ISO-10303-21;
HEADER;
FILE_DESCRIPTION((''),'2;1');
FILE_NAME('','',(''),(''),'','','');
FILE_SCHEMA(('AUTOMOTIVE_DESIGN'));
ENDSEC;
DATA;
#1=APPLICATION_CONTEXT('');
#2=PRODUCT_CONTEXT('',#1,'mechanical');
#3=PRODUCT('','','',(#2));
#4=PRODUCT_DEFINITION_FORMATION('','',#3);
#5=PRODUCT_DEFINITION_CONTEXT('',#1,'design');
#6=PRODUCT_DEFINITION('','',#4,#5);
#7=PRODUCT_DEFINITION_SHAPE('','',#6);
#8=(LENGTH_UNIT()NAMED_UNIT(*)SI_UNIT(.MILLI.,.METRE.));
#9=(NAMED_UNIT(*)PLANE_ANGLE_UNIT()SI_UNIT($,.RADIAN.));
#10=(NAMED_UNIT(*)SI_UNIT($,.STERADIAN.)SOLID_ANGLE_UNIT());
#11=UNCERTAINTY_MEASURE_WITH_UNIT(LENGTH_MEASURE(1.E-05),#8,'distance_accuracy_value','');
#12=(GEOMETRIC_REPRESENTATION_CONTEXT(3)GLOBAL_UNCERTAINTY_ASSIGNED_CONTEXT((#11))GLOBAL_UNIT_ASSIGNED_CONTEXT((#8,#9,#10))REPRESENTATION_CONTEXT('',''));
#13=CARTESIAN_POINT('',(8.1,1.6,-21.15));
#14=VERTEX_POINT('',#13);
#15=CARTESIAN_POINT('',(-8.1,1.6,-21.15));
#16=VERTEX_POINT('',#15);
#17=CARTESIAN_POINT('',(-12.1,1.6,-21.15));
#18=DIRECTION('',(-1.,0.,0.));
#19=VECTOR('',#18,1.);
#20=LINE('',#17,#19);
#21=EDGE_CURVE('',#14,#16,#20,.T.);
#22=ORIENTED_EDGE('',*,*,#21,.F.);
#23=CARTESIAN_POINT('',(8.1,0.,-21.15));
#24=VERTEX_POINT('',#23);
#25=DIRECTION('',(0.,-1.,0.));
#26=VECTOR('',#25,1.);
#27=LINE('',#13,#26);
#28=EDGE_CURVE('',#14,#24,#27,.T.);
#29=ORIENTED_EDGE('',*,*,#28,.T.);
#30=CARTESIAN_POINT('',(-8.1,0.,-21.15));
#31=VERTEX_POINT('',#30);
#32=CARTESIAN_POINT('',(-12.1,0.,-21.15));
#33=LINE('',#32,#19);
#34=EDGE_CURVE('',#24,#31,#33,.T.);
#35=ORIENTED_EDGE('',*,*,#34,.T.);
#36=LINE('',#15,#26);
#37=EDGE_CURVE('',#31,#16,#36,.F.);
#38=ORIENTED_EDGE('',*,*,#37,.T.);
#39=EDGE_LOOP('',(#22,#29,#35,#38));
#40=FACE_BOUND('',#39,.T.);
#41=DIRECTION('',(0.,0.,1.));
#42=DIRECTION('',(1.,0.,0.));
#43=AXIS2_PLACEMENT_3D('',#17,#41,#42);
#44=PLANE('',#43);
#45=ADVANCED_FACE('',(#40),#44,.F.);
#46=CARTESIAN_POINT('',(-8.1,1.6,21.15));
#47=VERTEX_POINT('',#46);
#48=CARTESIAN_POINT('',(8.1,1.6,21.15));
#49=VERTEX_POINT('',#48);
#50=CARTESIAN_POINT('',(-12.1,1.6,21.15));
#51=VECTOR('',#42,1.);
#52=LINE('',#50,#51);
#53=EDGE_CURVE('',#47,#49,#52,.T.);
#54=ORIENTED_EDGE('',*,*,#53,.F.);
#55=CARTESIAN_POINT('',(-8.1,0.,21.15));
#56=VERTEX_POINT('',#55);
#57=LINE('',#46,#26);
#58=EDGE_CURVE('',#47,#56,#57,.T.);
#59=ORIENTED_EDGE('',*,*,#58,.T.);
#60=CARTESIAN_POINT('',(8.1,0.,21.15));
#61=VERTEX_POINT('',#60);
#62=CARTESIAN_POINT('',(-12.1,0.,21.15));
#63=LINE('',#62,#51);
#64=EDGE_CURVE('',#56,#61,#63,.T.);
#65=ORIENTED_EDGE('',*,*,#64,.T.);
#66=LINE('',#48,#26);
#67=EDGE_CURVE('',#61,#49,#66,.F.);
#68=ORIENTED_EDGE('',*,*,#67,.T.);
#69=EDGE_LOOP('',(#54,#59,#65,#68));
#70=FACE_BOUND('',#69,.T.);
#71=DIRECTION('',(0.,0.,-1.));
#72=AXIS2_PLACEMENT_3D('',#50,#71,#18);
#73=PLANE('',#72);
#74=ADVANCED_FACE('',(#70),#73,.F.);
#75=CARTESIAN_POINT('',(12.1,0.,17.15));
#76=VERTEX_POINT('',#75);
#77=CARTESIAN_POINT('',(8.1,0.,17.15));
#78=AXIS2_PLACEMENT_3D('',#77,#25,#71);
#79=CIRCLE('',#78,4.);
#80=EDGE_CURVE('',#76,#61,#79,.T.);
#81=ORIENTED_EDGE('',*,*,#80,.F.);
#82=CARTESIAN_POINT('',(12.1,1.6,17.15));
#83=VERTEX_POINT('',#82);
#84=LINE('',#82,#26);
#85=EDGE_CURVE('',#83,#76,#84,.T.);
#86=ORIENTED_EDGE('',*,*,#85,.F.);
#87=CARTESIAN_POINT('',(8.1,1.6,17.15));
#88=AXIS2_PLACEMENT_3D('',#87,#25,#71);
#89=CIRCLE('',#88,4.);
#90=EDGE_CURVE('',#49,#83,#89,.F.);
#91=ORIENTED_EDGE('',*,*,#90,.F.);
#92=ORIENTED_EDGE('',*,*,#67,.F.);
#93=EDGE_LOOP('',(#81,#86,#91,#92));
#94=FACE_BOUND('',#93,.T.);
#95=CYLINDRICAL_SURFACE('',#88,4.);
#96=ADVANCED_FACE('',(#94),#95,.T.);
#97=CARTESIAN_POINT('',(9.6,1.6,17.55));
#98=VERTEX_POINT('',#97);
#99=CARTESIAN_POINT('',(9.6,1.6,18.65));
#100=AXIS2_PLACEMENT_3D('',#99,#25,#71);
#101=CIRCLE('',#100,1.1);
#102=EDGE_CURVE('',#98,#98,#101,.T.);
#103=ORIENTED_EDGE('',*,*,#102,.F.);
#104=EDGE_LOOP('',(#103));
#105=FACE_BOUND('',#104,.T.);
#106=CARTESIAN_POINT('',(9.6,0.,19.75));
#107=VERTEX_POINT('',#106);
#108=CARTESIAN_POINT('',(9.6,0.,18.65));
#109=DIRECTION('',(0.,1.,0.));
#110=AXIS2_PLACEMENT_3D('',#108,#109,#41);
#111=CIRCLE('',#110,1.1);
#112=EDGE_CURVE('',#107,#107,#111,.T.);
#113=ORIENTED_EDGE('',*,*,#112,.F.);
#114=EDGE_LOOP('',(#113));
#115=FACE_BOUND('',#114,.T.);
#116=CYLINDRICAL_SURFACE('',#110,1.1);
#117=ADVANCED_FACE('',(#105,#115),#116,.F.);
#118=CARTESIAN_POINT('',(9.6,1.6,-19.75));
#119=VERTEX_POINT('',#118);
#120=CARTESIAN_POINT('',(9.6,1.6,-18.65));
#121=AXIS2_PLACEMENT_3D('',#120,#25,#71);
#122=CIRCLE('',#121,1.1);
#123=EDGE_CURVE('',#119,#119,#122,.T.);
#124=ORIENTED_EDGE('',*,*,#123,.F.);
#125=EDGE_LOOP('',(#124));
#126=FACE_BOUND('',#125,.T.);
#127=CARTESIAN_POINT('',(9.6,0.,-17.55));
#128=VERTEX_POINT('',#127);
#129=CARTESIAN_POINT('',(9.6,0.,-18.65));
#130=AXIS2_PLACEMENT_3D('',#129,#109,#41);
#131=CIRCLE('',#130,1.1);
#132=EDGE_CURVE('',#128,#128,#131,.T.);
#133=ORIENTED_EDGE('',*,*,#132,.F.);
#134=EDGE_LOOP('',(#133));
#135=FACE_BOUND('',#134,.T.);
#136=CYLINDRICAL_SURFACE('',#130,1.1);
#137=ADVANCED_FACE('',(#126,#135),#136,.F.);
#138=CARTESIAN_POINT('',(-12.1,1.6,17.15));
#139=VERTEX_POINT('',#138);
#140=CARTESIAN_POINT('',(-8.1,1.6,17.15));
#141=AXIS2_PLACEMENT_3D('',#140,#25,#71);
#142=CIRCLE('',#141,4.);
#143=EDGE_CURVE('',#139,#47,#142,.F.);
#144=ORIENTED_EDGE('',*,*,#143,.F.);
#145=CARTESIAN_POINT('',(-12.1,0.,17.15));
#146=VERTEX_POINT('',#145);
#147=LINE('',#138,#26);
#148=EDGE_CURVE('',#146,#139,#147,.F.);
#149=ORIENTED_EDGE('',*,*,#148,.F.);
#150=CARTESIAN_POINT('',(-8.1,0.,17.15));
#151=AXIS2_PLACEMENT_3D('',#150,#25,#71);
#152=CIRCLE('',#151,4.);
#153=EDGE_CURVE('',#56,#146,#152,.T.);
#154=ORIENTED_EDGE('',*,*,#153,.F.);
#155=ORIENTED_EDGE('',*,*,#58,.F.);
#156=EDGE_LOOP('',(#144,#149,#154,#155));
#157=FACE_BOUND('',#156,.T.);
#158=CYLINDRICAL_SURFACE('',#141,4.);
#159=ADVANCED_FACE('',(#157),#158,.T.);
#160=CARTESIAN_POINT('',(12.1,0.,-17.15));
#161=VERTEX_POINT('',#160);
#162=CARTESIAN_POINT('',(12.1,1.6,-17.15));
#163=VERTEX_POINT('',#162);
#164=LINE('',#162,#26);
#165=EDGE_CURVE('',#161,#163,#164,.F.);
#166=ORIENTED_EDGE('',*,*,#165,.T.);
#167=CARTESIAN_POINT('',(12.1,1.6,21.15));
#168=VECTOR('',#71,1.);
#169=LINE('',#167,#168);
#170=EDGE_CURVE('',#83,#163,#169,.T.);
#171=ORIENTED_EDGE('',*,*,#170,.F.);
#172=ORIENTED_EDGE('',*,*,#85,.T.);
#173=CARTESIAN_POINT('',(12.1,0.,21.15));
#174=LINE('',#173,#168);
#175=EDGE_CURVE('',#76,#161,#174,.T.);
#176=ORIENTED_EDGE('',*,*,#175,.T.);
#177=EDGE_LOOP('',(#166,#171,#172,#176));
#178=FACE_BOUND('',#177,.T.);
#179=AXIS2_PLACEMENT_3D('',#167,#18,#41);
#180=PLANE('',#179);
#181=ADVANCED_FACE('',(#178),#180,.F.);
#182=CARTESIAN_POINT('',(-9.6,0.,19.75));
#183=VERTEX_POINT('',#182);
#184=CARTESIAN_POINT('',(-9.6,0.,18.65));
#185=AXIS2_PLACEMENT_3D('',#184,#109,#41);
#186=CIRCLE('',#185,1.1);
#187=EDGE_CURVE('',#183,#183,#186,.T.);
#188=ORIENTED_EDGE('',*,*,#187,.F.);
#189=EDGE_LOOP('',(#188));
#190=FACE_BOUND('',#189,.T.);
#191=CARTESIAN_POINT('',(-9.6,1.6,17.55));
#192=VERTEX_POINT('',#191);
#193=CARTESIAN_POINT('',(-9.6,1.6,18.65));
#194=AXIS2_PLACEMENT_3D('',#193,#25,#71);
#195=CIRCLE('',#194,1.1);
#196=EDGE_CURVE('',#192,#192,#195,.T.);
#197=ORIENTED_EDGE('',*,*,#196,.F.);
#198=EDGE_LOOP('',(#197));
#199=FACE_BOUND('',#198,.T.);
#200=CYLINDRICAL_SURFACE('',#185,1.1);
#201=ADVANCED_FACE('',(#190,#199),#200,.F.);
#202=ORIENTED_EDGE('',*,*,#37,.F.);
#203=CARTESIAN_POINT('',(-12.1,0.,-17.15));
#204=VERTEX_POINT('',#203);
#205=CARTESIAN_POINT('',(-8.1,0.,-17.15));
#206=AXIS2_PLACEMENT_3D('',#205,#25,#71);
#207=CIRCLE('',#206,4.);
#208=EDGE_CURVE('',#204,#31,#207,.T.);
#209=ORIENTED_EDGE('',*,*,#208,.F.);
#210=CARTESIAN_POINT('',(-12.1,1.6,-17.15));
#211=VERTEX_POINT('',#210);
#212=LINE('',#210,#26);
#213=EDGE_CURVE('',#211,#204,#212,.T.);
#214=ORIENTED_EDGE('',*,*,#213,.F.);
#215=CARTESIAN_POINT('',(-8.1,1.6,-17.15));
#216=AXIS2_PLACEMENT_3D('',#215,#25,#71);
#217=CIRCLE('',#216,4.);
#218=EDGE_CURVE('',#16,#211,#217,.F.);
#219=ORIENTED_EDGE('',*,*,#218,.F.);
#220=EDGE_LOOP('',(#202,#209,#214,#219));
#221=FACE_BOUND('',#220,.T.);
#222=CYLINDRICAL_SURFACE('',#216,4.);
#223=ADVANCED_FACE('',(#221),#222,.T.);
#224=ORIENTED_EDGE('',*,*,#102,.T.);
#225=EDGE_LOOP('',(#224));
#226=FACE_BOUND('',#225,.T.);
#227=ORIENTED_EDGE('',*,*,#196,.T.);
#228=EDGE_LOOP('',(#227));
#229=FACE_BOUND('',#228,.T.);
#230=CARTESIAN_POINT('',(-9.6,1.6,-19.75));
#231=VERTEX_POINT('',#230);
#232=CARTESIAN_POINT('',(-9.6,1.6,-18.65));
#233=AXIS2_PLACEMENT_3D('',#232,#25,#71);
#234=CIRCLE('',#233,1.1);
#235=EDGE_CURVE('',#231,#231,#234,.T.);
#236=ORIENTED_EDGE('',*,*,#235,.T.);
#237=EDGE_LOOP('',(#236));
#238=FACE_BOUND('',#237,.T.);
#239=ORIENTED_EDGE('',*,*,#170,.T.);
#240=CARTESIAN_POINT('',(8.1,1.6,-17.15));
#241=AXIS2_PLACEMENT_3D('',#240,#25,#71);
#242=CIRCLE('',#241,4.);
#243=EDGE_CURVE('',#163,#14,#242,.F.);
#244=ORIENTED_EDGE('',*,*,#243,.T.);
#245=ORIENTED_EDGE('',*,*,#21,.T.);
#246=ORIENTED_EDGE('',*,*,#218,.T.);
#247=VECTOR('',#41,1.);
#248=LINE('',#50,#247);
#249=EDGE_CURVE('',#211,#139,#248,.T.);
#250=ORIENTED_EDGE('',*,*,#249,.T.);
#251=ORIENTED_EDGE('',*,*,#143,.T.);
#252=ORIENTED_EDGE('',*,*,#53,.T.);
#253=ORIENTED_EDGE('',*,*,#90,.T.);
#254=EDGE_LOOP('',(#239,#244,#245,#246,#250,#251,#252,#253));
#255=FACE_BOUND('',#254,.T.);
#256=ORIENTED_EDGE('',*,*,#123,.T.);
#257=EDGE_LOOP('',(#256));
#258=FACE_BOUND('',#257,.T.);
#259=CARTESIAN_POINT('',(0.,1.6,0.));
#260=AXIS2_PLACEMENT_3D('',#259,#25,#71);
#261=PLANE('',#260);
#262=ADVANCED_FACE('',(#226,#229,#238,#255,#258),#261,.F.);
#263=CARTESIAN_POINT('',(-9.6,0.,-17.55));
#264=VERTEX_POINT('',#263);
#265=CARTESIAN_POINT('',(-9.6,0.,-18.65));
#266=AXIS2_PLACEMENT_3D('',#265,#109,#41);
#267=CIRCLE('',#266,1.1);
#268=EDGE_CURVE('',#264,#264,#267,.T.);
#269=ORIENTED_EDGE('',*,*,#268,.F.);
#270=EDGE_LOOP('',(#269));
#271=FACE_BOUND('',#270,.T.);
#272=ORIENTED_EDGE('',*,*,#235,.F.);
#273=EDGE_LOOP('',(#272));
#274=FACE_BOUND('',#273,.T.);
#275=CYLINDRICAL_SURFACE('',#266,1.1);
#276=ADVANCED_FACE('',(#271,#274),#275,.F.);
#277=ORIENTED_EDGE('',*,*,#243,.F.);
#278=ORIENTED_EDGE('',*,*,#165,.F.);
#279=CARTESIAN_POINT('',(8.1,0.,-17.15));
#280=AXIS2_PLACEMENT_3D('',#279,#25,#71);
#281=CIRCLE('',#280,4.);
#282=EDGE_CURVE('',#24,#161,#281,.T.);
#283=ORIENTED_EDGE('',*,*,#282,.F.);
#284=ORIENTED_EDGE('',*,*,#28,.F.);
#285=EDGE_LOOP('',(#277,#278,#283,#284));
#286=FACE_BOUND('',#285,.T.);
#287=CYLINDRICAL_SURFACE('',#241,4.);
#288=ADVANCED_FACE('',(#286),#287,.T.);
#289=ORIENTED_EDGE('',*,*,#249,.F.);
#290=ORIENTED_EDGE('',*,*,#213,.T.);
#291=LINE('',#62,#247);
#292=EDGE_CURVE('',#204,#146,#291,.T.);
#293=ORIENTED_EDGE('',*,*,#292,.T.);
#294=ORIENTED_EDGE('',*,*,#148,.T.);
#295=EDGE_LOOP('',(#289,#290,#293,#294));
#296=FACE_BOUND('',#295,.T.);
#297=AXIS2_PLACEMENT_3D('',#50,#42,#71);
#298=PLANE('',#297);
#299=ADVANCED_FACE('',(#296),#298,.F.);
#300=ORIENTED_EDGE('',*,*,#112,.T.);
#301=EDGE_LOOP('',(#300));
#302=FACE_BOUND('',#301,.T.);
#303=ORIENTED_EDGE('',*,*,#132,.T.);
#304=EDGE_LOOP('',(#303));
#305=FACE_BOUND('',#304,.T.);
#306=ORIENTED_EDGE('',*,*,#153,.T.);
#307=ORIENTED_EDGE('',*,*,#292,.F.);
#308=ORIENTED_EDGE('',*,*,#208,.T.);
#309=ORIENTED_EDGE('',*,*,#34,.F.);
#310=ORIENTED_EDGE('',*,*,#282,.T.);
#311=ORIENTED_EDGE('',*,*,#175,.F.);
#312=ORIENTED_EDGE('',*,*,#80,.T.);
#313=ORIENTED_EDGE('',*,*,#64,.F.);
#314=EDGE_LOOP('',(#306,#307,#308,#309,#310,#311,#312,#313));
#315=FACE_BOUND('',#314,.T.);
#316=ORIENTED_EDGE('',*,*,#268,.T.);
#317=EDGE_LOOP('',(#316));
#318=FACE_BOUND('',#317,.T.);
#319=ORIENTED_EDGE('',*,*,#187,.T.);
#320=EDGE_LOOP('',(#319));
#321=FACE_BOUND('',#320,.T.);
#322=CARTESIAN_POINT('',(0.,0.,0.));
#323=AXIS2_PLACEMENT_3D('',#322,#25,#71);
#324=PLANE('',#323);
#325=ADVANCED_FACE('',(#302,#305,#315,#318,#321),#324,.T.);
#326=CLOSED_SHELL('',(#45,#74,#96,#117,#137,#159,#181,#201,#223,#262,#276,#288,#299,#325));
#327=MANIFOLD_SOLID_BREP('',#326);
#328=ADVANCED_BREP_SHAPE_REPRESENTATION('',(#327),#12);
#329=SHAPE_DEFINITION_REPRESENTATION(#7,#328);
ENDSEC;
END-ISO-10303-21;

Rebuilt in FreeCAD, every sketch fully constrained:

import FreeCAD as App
import Part
import Sketcher
from FreeCAD import Vector
Q = App.Units.Quantity


def edges_at(feature, points):
    """Names of the edges that pass closest to the given points."""
    edges = feature.Shape.Edges
    near = lambda p: min(range(len(edges)), key=lambda i: edges[i].distToShape(Part.Vertex(*p))[0])
    return sorted({f"Edge{near(p) + 1}" for p in points})


def add_polygon(sketch, points):
    """Adds a closed chain of lines whose ends are joined by coincident constraints."""
    first, n = sketch.GeometryCount, len(points)
    for a, b in zip(points, points[1:] + points[:1]):
        sketch.addGeometry(Part.LineSegment(App.Vector(*a, 0), App.Vector(*b, 0)), False)
    for i in range(n):
        sketch.addConstraint(Sketcher.Constraint("Coincident", first + i, 2, first + (i + 1) % n, 1))

doc = App.newDocument("Part")
body = doc.addObject("PartDesign::Body", "Body")

sketch1 = doc.addObject("Sketcher::SketchObject", "Sketch")
body.addObject(sketch1)
sketch1.AttachmentSupport = (doc.XZ_Plane, [""])
sketch1.MapMode = "FlatFace"
add_polygon(sketch1, [(-12.1, -21.15), (-12.1, 21.15), (12.1, 21.15), (12.1, -21.15)])
sketch1.addConstraint(Sketcher.Constraint("Vertical", 0))
sketch1.addConstraint(Sketcher.Constraint("Horizontal", 1))
sketch1.addConstraint(Sketcher.Constraint("Vertical", 2))
sketch1.addConstraint(Sketcher.Constraint("Horizontal", 3))
sketch1.addConstraint(Sketcher.Constraint("Symmetric", 0, 2, 2, 2, -1, 1))
sketch1.addConstraint(Sketcher.Constraint("DistanceX", 1, 1, 1, 2, Q("24.2 mm")))
sketch1.addConstraint(Sketcher.Constraint("DistanceY", 0, 1, 0, 2, Q("42.3 mm")))
pad1 = doc.addObject("PartDesign::Pad", "Pad")
body.addObject(pad1)
pad1.Profile = sketch1
pad1.Length = 1.6
pad1.Reversed = True
doc.recompute()

fillet = doc.addObject("PartDesign::Fillet", "Fillet")
body.addObject(fillet)
fillet.Base = (pad1, edges_at(pad1, [
    (12.1, 0.8, 21.15),
    (-12.1, 0.8, 21.15),
    (-12.1, 0.8, -21.15),
    (12.1, 0.8, -21.15),
]))
fillet.Radius = 4

sketch2 = doc.addObject("Sketcher::SketchObject", "Sketch001")
body.addObject(sketch2)
sketch2.AttachmentSupport = (doc.XZ_Plane, [""])
sketch2.MapMode = "FlatFace"
sketch2.AttachmentOffset = App.Placement(Vector(0, 0, -1.6), App.Rotation())
sketch2.addGeometry(Part.Circle(Vector(-9.6, -18.65, 0), Vector(0, 0, 1), 1.1), False)
sketch2.addGeometry(Part.Circle(Vector(9.6, -18.65, 0), Vector(0, 0, 1), 1.1), False)
sketch2.addGeometry(Part.Circle(Vector(9.6, 18.65, 0), Vector(0, 0, 1), 1.1), False)
sketch2.addGeometry(Part.Circle(Vector(-9.6, 18.65, 0), Vector(0, 0, 1), 1.1), False)
sketch2.addConstraint(Sketcher.Constraint("Equal", 0, 1))
sketch2.addConstraint(Sketcher.Constraint("Equal", 1, 2))
sketch2.addConstraint(Sketcher.Constraint("Equal", 2, 3))
sketch2.addConstraint(Sketcher.Constraint("Symmetric", 0, 3, 2, 3, -1, 1))
sketch2.addConstraint(Sketcher.Constraint("Symmetric", 1, 3, 3, 3, -1, 1))
sketch2.addConstraint(Sketcher.Constraint("Symmetric", 0, 3, 1, 3, -2))
sketch2.addConstraint(Sketcher.Constraint("Diameter", 0, Q("2.2 mm")))
sketch2.addConstraint(Sketcher.Constraint("DistanceX", 0, 3, -1, 1, Q("9.6 mm")))
sketch2.addConstraint(Sketcher.Constraint("DistanceY", 1, 3, 2, 3, Q("37.3 mm")))
pocket1 = doc.addObject("PartDesign::Pocket", "Pocket")
body.addObject(pocket1)
pocket1.Profile = sketch2
pocket1.Type = "ThroughAll"
pocket1.Midplane = True

doc.recompute()
